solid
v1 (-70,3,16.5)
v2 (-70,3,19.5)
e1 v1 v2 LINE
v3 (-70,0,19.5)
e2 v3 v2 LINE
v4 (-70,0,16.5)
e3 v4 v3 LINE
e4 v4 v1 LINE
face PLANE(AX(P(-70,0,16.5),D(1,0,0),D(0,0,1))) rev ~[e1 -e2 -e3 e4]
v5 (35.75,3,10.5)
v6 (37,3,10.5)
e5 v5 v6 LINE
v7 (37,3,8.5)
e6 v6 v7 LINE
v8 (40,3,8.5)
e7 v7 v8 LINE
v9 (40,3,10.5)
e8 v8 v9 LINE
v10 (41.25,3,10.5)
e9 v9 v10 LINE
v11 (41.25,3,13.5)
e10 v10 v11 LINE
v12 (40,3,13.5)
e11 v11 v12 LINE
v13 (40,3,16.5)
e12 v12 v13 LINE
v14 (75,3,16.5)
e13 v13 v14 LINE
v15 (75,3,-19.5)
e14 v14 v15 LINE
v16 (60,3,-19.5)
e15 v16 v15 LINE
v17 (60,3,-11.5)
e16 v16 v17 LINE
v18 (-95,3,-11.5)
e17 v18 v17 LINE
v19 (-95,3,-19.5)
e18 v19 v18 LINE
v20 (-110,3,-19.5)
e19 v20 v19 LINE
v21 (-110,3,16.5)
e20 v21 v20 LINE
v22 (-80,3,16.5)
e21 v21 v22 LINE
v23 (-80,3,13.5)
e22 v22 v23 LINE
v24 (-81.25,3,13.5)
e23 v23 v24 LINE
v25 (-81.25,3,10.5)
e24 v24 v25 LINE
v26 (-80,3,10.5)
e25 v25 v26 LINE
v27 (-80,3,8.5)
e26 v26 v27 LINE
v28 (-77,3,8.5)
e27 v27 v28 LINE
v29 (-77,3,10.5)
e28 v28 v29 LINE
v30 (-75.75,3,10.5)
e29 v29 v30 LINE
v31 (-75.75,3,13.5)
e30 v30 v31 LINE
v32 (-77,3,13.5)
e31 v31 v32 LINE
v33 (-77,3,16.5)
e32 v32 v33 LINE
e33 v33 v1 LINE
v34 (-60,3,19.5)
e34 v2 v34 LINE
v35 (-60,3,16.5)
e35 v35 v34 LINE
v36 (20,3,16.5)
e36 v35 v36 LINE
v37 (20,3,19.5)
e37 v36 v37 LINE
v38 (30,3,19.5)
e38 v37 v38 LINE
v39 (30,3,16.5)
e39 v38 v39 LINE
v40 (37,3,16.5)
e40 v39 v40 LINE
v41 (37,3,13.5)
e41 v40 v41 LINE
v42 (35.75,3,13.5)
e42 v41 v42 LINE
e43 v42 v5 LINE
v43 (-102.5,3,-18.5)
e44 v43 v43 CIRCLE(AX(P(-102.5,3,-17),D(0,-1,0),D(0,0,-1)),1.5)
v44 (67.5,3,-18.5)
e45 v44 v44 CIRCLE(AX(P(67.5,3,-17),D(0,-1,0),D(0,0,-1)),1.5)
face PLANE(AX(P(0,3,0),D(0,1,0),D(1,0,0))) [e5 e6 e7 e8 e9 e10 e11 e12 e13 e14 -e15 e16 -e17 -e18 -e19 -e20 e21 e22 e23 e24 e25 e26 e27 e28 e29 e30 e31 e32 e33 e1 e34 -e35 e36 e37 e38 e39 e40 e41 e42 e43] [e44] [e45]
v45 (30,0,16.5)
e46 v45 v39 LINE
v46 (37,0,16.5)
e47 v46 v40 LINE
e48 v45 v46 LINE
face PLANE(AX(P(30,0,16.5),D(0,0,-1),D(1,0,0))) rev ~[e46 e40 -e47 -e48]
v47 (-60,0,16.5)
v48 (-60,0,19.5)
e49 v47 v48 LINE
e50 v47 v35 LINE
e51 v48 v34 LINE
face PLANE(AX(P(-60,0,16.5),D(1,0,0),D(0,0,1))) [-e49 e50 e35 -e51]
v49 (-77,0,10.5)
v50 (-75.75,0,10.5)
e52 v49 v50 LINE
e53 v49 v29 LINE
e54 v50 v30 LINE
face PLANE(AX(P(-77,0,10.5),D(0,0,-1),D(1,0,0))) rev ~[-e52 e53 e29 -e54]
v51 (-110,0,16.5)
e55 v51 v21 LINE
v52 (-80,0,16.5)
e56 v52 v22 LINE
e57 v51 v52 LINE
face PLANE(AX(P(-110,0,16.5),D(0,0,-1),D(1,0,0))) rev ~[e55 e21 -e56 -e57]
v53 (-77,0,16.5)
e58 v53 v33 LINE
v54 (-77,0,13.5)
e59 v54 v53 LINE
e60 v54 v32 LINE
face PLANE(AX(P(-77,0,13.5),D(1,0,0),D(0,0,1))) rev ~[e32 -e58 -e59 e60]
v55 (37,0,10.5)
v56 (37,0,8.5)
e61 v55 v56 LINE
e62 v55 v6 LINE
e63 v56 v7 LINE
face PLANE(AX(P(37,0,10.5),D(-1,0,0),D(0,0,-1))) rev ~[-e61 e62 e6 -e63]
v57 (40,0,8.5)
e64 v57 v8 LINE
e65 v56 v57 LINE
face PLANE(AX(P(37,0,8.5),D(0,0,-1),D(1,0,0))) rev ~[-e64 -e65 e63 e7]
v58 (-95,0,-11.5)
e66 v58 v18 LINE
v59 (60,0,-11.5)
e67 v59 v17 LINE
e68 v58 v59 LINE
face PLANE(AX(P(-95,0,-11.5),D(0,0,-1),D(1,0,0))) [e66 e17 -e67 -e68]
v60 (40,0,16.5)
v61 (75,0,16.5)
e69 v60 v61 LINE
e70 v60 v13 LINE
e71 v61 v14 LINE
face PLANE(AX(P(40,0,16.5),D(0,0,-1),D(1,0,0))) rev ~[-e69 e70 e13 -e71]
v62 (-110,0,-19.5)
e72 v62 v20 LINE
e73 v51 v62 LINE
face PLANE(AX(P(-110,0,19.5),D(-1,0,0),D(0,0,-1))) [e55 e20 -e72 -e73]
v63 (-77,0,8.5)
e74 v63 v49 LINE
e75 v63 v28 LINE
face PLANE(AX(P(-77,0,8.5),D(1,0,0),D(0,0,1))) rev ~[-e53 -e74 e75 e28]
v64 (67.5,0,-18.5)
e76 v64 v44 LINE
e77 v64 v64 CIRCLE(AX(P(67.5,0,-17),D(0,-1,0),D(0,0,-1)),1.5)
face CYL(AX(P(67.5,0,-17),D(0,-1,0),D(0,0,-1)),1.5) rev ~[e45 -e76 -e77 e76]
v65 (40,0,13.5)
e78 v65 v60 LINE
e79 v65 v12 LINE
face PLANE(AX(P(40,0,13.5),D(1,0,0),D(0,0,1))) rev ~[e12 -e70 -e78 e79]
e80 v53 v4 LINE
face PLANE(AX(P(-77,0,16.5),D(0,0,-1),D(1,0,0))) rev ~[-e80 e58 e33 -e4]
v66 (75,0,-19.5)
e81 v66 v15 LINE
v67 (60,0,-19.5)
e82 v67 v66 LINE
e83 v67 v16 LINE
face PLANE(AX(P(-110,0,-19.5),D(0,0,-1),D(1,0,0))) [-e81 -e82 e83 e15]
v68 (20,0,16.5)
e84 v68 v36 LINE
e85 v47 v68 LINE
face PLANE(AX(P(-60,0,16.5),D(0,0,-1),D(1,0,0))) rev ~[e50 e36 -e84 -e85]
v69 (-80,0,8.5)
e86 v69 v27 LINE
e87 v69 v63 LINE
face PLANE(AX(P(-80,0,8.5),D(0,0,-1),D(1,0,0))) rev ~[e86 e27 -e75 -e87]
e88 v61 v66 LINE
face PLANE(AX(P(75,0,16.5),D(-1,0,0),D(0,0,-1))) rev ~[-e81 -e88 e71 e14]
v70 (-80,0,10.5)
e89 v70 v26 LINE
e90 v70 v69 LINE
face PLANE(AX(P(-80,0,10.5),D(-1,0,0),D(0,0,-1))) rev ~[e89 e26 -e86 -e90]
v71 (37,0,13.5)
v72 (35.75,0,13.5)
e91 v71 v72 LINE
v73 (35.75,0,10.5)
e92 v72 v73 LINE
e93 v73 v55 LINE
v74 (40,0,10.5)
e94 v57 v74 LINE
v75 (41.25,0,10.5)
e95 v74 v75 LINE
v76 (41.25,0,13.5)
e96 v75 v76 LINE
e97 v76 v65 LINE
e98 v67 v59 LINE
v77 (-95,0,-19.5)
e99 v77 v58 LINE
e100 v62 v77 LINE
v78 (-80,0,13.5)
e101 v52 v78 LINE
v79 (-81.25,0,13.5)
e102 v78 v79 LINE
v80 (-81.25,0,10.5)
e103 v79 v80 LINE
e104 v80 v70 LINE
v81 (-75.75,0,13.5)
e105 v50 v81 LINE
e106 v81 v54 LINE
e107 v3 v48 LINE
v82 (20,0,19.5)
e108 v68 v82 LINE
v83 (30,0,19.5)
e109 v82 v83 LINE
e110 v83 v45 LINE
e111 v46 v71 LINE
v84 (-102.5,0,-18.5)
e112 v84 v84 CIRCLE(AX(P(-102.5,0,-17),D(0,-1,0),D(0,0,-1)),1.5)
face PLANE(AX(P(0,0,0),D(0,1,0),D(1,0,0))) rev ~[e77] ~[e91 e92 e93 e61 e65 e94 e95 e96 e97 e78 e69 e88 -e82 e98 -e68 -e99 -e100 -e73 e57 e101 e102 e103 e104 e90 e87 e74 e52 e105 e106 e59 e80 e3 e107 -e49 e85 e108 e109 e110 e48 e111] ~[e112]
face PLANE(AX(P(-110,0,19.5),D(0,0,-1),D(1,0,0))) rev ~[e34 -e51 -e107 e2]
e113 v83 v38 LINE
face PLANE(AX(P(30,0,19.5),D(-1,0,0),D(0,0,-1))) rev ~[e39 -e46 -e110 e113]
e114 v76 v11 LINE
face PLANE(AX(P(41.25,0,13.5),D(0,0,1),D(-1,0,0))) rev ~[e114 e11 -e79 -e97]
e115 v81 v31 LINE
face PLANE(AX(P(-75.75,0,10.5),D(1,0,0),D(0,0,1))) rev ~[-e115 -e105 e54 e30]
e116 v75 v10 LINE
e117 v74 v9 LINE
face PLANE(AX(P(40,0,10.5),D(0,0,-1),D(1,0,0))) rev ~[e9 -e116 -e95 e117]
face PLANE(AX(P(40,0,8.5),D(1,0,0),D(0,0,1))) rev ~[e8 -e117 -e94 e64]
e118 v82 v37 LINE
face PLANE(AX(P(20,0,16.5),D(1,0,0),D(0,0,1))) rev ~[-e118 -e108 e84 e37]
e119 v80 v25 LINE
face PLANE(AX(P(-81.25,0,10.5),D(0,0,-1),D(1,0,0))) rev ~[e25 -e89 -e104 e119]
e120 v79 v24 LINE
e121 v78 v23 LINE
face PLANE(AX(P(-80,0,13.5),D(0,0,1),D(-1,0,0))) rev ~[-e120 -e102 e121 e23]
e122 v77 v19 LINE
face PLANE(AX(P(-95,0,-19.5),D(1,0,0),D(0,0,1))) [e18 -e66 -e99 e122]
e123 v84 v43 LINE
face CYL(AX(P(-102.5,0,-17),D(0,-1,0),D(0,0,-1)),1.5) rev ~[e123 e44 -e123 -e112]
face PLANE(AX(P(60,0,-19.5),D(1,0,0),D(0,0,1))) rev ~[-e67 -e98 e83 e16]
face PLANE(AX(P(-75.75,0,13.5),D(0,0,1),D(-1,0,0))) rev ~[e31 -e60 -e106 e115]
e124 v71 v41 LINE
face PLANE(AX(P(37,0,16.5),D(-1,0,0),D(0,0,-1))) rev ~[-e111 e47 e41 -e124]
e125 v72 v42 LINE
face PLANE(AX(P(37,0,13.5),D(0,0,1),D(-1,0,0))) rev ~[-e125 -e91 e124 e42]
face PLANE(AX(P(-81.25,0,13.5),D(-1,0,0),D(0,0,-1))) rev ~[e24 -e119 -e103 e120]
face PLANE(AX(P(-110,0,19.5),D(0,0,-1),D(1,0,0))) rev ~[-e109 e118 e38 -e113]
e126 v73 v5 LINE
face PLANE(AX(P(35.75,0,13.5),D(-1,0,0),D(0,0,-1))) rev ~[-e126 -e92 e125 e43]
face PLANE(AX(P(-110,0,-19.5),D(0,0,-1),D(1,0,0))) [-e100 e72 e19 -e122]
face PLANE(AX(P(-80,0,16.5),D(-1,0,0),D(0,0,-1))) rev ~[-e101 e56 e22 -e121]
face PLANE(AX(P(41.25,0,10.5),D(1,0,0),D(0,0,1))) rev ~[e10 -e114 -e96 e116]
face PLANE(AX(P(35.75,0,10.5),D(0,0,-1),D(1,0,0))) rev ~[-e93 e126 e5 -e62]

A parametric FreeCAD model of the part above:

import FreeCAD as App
import Part
import Sketcher
from FreeCAD import Vector
Q = App.Units.Quantity

doc = App.newDocument("Part")
body = doc.addObject("PartDesign::Body", "Body")

sketch1 = doc.addObject("Sketcher::SketchObject", "Sketch")
body.addObject(sketch1)
sketch1.AttachmentSupport = (doc.XZ_Plane, [""])
sketch1.MapMode = "FlatFace"
sketch1.addGeometry([
    Part.LineSegment(Vector(-110, -20, 0), Vector(-110, 20, 0)),
    Part.LineSegment(Vector(-110, 20, 0), Vector(110, 20, 0)),
    Part.LineSegment(Vector(110, 20, 0), Vector(110, -20, 0)),
    Part.LineSegment(Vector(110, -20, 0), Vector(-110, -20, 0)),
], False)
sketch1.addConstraint([
    Sketcher.Constraint("Coincident", 0, 2, 1, 1),
    Sketcher.Constraint("Coincident", 1, 2, 2, 1),
    Sketcher.Constraint("Coincident", 2, 2, 3, 1),
    Sketcher.Constraint("Coincident", 3, 2, 0, 1),
    Sketcher.Constraint("Vertical", 0),
    Sketcher.Constraint("Horizontal", 1),
    Sketcher.Constraint("Vertical", 2),
    Sketcher.Constraint("Horizontal", 3),
    Sketcher.Constraint("Symmetric", 0, 2, 2, 2, -1, 1),
    Sketcher.Constraint("DistanceX", 1, 1, 1, 2, Q("220 mm")),
    Sketcher.Constraint("DistanceY", 0, 1, 0, 2, Q("39 mm")),
])
pad1 = doc.addObject("PartDesign::Pad", "Pad")
body.addObject(pad1)
pad1.Profile = sketch1
pad1.Length = 3
pad1.Reversed = True

sketch2 = doc.addObject("Sketcher::SketchObject", "Sketch001")
body.addObject(sketch2)
sketch2.AttachmentSupport = (doc.XZ_Plane, [""])
sketch2.MapMode = "FlatFace"
sketch2.addGeometry([
    Part.LineSegment(Vector(-80, 16.5, 0), Vector(-80, 13.5, 0)),
    Part.LineSegment(Vector(-80, 13.5, 0), Vector(-81.2, 13.5, 0)),
    Part.LineSegment(Vector(-81.2, 13.5, 0), Vector(-81.2, 10.5, 0)),
    Part.LineSegment(Vector(-81.2, 10.5, 0), Vector(-80, 10.5, 0)),
    Part.LineSegment(Vector(-80, 10.5, 0), Vector(-80, 8.5, 0)),
    Part.LineSegment(Vector(-80, 8.5, 0), Vector(-77, 8.5, 0)),
    Part.LineSegment(Vector(-77, 8.5, 0), Vector(-77, 10.5, 0)),
    Part.LineSegment(Vector(-77, 10.5, 0), Vector(-75.8, 10.5, 0)),
    Part.LineSegment(Vector(-75.8, 10.5, 0), Vector(-75.8, 13.5, 0)),
    Part.LineSegment(Vector(-75.8, 13.5, 0), Vector(-77, 13.5, 0)),
    Part.LineSegment(Vector(-77, 13.5, 0), Vector(-77, 16.5, 0)),
    Part.LineSegment(Vector(-77, 16.5, 0), Vector(-70, 16.5, 0)),
    Part.LineSegment(Vector(-70, 16.5, 0), Vector(-70, 19.5, 0)),
    Part.LineSegment(Vector(-70, 19.5, 0), Vector(-110, 19.5, 0)),
    Part.LineSegment(Vector(-110, 19.5, 0), Vector(-110, 16.5, 0)),
    Part.LineSegment(Vector(-110, 16.5, 0), Vector(-80, 16.5, 0)),
    Part.LineSegment(Vector(-95, -11.5, 0), Vector(-95, -19.5, 0)),
    Part.LineSegment(Vector(-95, -19.5, 0), Vector(60, -19.5, 0)),
    Part.LineSegment(Vector(60, -19.5, 0), Vector(60, -11.5, 0)),
    Part.LineSegment(Vector(60, -11.5, 0), Vector(-95, -11.5, 0)),
    Part.LineSegment(Vector(110, 19.5, 0), Vector(30, 19.5, 0)),
    Part.LineSegment(Vector(30, 19.5, 0), Vector(30, 16.5, 0)),
    Part.LineSegment(Vector(30, 16.5, 0), Vector(37, 16.5, 0)),
    Part.LineSegment(Vector(37, 16.5, 0), Vector(37, 13.5, 0)),
    Part.LineSegment(Vector(37, 13.5, 0), Vector(35.8, 13.5, 0)),
    Part.LineSegment(Vector(35.8, 13.5, 0), Vector(35.8, 10.5, 0)),
    Part.LineSegment(Vector(35.8, 10.5, 0), Vector(37, 10.5, 0)),
    Part.LineSegment(Vector(37, 10.5, 0), Vector(37, 8.5, 0)),
    Part.LineSegment(Vector(37, 8.5, 0), Vector(40, 8.5, 0)),
    Part.LineSegment(Vector(40, 8.5, 0), Vector(40, 10.5, 0)),
    Part.LineSegment(Vector(40, 10.5, 0), Vector(41.2, 10.5, 0)),
    Part.LineSegment(Vector(41.2, 10.5, 0), Vector(41.2, 13.5, 0)),
    Part.LineSegment(Vector(41.2, 13.5, 0), Vector(40, 13.5, 0)),
    Part.LineSegment(Vector(40, 13.5, 0), Vector(40, 16.5, 0)),
    Part.LineSegment(Vector(40, 16.5, 0), Vector(75, 16.5, 0)),
    Part.LineSegment(Vector(75, 16.5, 0), Vector(75, -19.5, 0)),
    Part.LineSegment(Vector(75, -19.5, 0), Vector(110, -19.5, 0)),
    Part.LineSegment(Vector(110, -19.5, 0), Vector(110, 19.5, 0)),
    Part.LineSegment(Vector(-60, 19.5, 0), Vector(-60, 16.5, 0)),
    Part.LineSegment(Vector(-60, 16.5, 0), Vector(20, 16.5, 0)),
    Part.LineSegment(Vector(20, 16.5, 0), Vector(20, 19.5, 0)),
    Part.LineSegment(Vector(20, 19.5, 0), Vector(-60, 19.5, 0)),
    Part.Circle(Vector(-102.5, -17, 0), Vector(0, 0, 1), 1.5),
    Part.Circle(Vector(67.5, -17, 0), Vector(0, 0, 1), 1.5),
], False)
sketch2.addConstraint([
    Sketcher.Constraint("Coincident", 0, 2, 1, 1),
    Sketcher.Constraint("Coincident", 1, 2, 2, 1),
    Sketcher.Constraint("Coincident", 2, 2, 3, 1),
    Sketcher.Constraint("Coincident", 3, 2, 4, 1),
    Sketcher.Constraint("Coincident", 4, 2, 5, 1),
    Sketcher.Constraint("Coincident", 5, 2, 6, 1),
    Sketcher.Constraint("Coincident", 6, 2, 7, 1),
    Sketcher.Constraint("Coincident", 7, 2, 8, 1),
    Sketcher.Constraint("Coincident", 8, 2, 9, 1),
    Sketcher.Constraint("Coincident", 9, 2, 10, 1),
    Sketcher.Constraint("Coincident", 10, 2, 11, 1),
    Sketcher.Constraint("Coincident", 11, 2, 12, 1),
    Sketcher.Constraint("Coincident", 12, 2, 13, 1),
    Sketcher.Constraint("Coincident", 13, 2, 14, 1),
    Sketcher.Constraint("Coincident", 14, 2, 15, 1),
    Sketcher.Constraint("Coincident", 15, 2, 0, 1),
    Sketcher.Constraint("Coincident", 16, 2, 17, 1),
    Sketcher.Constraint("Coincident", 17, 2, 18, 1),
    Sketcher.Constraint("Coincident", 18, 2, 19, 1),
    Sketcher.Constraint("Coincident", 19, 2, 16, 1),
    Sketcher.Constraint("Coincident", 20, 2, 21, 1),
    Sketcher.Constraint("Coincident", 21, 2, 22, 1),
    Sketcher.Constraint("Coincident", 22, 2, 23, 1),
    Sketcher.Constraint("Coincident", 23, 2, 24, 1),
    Sketcher.Constraint("Coincident", 24, 2, 25, 1),
    Sketcher.Constraint("Coincident", 25, 2, 26, 1),
    Sketcher.Constraint("Coincident", 26, 2, 27, 1),
    Sketcher.Constraint("Coincident", 27, 2, 28, 1),
    Sketcher.Constraint("Coincident", 28, 2, 29, 1),
    Sketcher.Constraint("Coincident", 29, 2, 30, 1),
    Sketcher.Constraint("Coincident", 30, 2, 31, 1),
    Sketcher.Constraint("Coincident", 31, 2, 32, 1),
    Sketcher.Constraint("Coincident", 32, 2, 33, 1),
    Sketcher.Constraint("Coincident", 33, 2, 34, 1),
    Sketcher.Constraint("Coincident", 34, 2, 35, 1),
    Sketcher.Constraint("Coincident", 35, 2, 36, 1),
    Sketcher.Constraint("Coincident", 36, 2, 37, 1),
    Sketcher.Constraint("Coincident", 37, 2, 20, 1),
    Sketcher.Constraint("Coincident", 38, 2, 39, 1),
    Sketcher.Constraint("Coincident", 39, 2, 40, 1),
    Sketcher.Constraint("Coincident", 40, 2, 41, 1),
    Sketcher.Constraint("Coincident", 41, 2, 38, 1),
    Sketcher.Constraint("Vertical", 0),
    Sketcher.Constraint("Horizontal", 1),
    Sketcher.Constraint("Vertical", 2),
    Sketcher.Constraint("Horizontal", 3),
    Sketcher.Constraint("Vertical", 4),
    Sketcher.Constraint("Horizontal", 5),
    Sketcher.Constraint("Vertical", 6),
    Sketcher.Constraint("Horizontal", 7),
    Sketcher.Constraint("Vertical", 8),
    Sketcher.Constraint("Horizontal", 9),
    Sketcher.Constraint("Vertical", 10),
    Sketcher.Constraint("Horizontal", 11),
    Sketcher.Constraint("Vertical", 12),
    Sketcher.Constraint("Horizontal", 13),
    Sketcher.Constraint("Vertical", 14),
    Sketcher.Constraint("Horizontal", 15),
    Sketcher.Constraint("Vertical", 16),
    Sketcher.Constraint("Horizontal", 17),
    Sketcher.Constraint("Vertical", 18),
    Sketcher.Constraint("Horizontal", 19),
    Sketcher.Constraint("Horizontal", 20),
    Sketcher.Constraint("Vertical", 21),
    Sketcher.Constraint("Horizontal", 22),
    Sketcher.Constraint("Vertical", 23),
    Sketcher.Constraint("Horizontal", 24),
    Sketcher.Constraint("Vertical", 25),
    Sketcher.Constraint("Horizontal", 26),
    Sketcher.Constraint("Vertical", 27),
    Sketcher.Constraint("Horizontal", 28),
    Sketcher.Constraint("Vertical", 29),
    Sketcher.Constraint("Horizontal", 30),
    Sketcher.Constraint("Vertical", 31),
    Sketcher.Constraint("Horizontal", 32),
    Sketcher.Constraint("Vertical", 33),
    Sketcher.Constraint("Horizontal", 34),
    Sketcher.Constraint("Vertical", 35),
    Sketcher.Constraint("Horizontal", 36),
    Sketcher.Constraint("Vertical", 37),
    Sketcher.Constraint("Vertical", 38),
    Sketcher.Constraint("Horizontal", 39),
    Sketcher.Constraint("Vertical", 40),
    Sketcher.Constraint("Horizontal", 41),
    Sketcher.Constraint("Equal", 42, 43),
    Sketcher.Constraint("Symmetric", 13, 2, 36, 2, -1, 1),
    Sketcher.Constraint("Symmetric", 17, 2, 41, 2, -1, 1),
    Sketcher.Constraint("Horizontal", 42, 3, 43, 3),
    Sketcher.Constraint("Horizontal", 3, 2, 6, 2),
    Sketcher.Constraint("Horizontal", 1, 2, 8, 2),
    Sketcher.Constraint("Horizontal", 11, 2, 14, 2),
    Sketcher.Constraint("Horizontal", 13, 2, 20, 2),
    Sketcher.Constraint("Horizontal", 15, 2, 21, 2),
    Sketcher.Constraint("Horizontal", 9, 2, 23, 2),
    Sketcher.Constraint("Horizontal", 7, 2, 25, 2),
    Sketcher.Constraint("Horizontal", 5, 2, 27, 2),
    Sketcher.Constraint("Horizontal", 26, 2, 29, 2),
    Sketcher.Constraint("Horizontal", 24, 2, 31, 2),
    Sketcher.Constraint("Horizontal", 22, 2, 33, 2),
    Sketcher.Constraint("Horizontal", 17, 2, 35, 2),
    Sketcher.Constraint("Horizontal", 34, 2, 38, 2),
    Sketcher.Constraint("Vertical", 0, 2, 3, 2),
    Sketcher.Constraint("Vertical", 6, 2, 9, 2),
    Sketcher.Constraint("Vertical", 23, 2, 26, 2),
    Sketcher.Constraint("Vertical", 29, 2, 32, 2),
    Sketcher.Constraint("Equal", 3, 7),
    Sketcher.Constraint("Equal", 11, 22),
    Sketcher.Constraint("Equal", 9, 24),
    Sketcher.Constraint("Equal", 5, 28),
    Sketcher.Constraint("Equal", 26, 30),
    Sketcher.Constraint("Equal", 34, 36),
    Sketcher.Constraint("Equal", 20, 39),
    Sketcher.Constraint("Equal", 28, 0),
    Sketcher.Constraint("Equal", 0, 2),
    Sketcher.Constraint("Equal", 10, 12),
    Sketcher.Constraint("Diameter", 42, Q("3 mm")),
    Sketcher.Constraint("DistanceX", 5, 1, 5, 2, Q("3 mm")),
    Sketcher.Constraint("DistanceX", 11, 1, 11, 2, Q("7 mm")),
    Sketcher.Constraint("DistanceX", 13, 2, 13, 1, Q("40 mm")),
    Sketcher.Constraint("DistanceX", 17, 1, 17, 2, Q("155 mm")),
    Sketcher.Constraint("DistanceX", 20, 2, 20, 1, Q("80 mm")),
    Sketcher.Constraint("DistanceY", 4, 2, 4, 1, Q("2 mm")),
    Sketcher.Constraint("DistanceY", 16, 2, 16, 1, Q("8 mm")),
    Sketcher.Constraint("DistanceY", 35, 2, 35, 1, Q("36 mm")),
    Sketcher.Constraint("DistanceY", 42, 3, -1, 1, Q("17 mm")),
    Sketcher.Constraint("DistanceX", 0, 2, -1, 1, Q("80 mm")),
    Sketcher.Constraint("DistanceX", 16, 2, -1, 1, Q("95 mm")),
    Sketcher.Constraint("DistanceX", 42, 3, 43, 3, Q("170 mm")),
    Sketcher.Constraint("DistanceX", 1, 2, 1, 1, Q("1.25 mm")),
    Sketcher.Constraint("DistanceX", 42, 3, -1, 1, Q("102.5 mm")),
])
pocket1 = doc.addObject("PartDesign::Pocket", "Pocket")
body.addObject(pocket1)
pocket1.Profile = sketch2
pocket1.Length = 3

doc.recompute()
